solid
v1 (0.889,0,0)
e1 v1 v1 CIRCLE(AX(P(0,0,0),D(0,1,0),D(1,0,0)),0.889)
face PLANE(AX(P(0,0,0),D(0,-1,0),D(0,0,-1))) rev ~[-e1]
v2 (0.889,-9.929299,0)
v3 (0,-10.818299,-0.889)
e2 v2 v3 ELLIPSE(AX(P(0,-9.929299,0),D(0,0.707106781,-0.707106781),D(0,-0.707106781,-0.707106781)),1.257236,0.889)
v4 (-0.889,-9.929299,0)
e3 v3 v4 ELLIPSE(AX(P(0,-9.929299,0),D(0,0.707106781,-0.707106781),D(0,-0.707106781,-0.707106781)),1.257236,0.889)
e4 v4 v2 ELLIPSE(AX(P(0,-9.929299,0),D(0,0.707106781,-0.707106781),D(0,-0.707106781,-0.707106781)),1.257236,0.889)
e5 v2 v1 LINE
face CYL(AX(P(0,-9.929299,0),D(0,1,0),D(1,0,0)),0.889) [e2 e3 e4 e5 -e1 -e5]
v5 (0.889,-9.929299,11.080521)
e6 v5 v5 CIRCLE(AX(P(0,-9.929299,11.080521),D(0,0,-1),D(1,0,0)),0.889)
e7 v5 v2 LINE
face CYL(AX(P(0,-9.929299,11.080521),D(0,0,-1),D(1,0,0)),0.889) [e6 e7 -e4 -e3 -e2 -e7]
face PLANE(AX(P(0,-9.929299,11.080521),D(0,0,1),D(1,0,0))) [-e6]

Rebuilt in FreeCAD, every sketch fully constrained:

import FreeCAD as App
import Part
import Sketcher
from FreeCAD import Vector
Q = App.Units.Quantity

doc = App.newDocument("Part")
body = doc.addObject("PartDesign::Body", "Body")

# Sketch on XZ plane
sketch1 = doc.addObject("Sketcher::SketchObject", "Sketch")
body.addObject(sketch1)
sketch1.AttachmentSupport = (doc.XZ_Plane, [""])
sketch1.MapMode = "FlatFace"
sketch1.addGeometry(Part.Circle(Vector(0, 0, 0), Vector(0, 0, 1), 0.889), False)
sketch1.addConstraint([
    Sketcher.Constraint("Coincident", 0, 3, -1, 1),
    Sketcher.Constraint("Diameter", 0, Q("0.07 in")),
])

# Sketch on YZ plane
sketch2 = doc.addObject("Sketcher::SketchObject", "Sketch001")
body.addObject(sketch2)
sketch2.AttachmentSupport = (doc.YZ_Plane, [""])
sketch2.MapMode = "FlatFace"
sketch2.addGeometry([
    Part.LineSegment(Vector(-9.929299, 11.080521, 0), Vector(-9.929299, 0, 0)),
    Part.LineSegment(Vector(-9.929299, 0, 0), Vector(0, 0, 0)),
], False)
sketch2.addConstraint([
    Sketcher.Constraint("Coincident", 0, 2, 1, 1),
    Sketcher.Constraint("Vertical", 0),
    Sketcher.Constraint("Horizontal", 1),
    Sketcher.Constraint("Coincident", 1, 2, -1, 1),
    Sketcher.Constraint("DistanceX", 1, 1, 1, 2, 9.929299),
    Sketcher.Constraint("DistanceY", 0, 2, 0, 1, 11.080521),
])
doc.recompute()

additivepipe = doc.addObject("PartDesign::AdditivePipe", "AdditivePipe")
body.addObject(additivepipe)
additivepipe.Profile = sketch1
additivepipe.Spine = (sketch2, ["Edge1", "Edge2"])
additivepipe.Transition = "Right corner"

doc.recompute()
